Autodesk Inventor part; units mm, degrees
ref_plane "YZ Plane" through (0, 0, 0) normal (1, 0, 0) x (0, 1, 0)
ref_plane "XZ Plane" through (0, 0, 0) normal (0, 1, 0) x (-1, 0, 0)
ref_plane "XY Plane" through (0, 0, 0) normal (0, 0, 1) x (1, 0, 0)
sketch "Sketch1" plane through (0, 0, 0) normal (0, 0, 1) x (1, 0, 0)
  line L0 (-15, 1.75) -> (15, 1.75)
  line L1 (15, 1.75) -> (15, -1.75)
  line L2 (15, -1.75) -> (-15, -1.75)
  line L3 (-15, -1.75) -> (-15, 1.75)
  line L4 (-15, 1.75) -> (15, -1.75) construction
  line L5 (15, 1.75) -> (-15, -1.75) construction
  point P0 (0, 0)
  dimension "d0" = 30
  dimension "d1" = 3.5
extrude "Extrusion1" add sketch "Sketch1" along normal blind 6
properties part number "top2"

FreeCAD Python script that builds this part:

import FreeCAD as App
import Part
import Sketcher
from FreeCAD import Vector


def add_polygon(sketch, points):
    """Adds a closed chain of lines whose ends are joined by coincident constraints."""
    first, n = sketch.GeometryCount, len(points)
    for a, b in zip(points, points[1:] + points[:1]):
        sketch.addGeometry(Part.LineSegment(App.Vector(*a, 0), App.Vector(*b, 0)), False)
    for i in range(n):
        sketch.addConstraint(Sketcher.Constraint("Coincident", first + i, 2, first + (i + 1) % n, 1))

doc = App.newDocument("Part")
body = doc.addObject("PartDesign::Body", "Body")

# Sketch on XY plane
sketch1 = doc.addObject("Sketcher::SketchObject", "Sketch")
body.addObject(sketch1)
sketch1.AttachmentSupport = (doc.XY_Plane, [""])
sketch1.MapMode = "FlatFace"
add_polygon(sketch1, [(15, 1.8), (-15, 1.8), (-15, -1.8), (15, -1.8)])  # lines 0-3
sketch1.addConstraint([
    Sketcher.Constraint("Horizontal", 0),
    Sketcher.Constraint("Vertical", 1),
    Sketcher.Constraint("Horizontal", 2),
    Sketcher.Constraint("Vertical", 3),
    Sketcher.Constraint("Symmetric", 0, 2, 2, 2, -1, 1),
    Sketcher.Constraint("DistanceX", 0, 2, 0, 1, 30.0),
    Sketcher.Constraint("DistanceY", 1, 2, 1, 1, 3.5),
])
pad1 = doc.addObject("PartDesign::Pad", "Pad")
body.addObject(pad1)
pad1.Profile = sketch1
pad1.Length = 6

doc.recompute()
